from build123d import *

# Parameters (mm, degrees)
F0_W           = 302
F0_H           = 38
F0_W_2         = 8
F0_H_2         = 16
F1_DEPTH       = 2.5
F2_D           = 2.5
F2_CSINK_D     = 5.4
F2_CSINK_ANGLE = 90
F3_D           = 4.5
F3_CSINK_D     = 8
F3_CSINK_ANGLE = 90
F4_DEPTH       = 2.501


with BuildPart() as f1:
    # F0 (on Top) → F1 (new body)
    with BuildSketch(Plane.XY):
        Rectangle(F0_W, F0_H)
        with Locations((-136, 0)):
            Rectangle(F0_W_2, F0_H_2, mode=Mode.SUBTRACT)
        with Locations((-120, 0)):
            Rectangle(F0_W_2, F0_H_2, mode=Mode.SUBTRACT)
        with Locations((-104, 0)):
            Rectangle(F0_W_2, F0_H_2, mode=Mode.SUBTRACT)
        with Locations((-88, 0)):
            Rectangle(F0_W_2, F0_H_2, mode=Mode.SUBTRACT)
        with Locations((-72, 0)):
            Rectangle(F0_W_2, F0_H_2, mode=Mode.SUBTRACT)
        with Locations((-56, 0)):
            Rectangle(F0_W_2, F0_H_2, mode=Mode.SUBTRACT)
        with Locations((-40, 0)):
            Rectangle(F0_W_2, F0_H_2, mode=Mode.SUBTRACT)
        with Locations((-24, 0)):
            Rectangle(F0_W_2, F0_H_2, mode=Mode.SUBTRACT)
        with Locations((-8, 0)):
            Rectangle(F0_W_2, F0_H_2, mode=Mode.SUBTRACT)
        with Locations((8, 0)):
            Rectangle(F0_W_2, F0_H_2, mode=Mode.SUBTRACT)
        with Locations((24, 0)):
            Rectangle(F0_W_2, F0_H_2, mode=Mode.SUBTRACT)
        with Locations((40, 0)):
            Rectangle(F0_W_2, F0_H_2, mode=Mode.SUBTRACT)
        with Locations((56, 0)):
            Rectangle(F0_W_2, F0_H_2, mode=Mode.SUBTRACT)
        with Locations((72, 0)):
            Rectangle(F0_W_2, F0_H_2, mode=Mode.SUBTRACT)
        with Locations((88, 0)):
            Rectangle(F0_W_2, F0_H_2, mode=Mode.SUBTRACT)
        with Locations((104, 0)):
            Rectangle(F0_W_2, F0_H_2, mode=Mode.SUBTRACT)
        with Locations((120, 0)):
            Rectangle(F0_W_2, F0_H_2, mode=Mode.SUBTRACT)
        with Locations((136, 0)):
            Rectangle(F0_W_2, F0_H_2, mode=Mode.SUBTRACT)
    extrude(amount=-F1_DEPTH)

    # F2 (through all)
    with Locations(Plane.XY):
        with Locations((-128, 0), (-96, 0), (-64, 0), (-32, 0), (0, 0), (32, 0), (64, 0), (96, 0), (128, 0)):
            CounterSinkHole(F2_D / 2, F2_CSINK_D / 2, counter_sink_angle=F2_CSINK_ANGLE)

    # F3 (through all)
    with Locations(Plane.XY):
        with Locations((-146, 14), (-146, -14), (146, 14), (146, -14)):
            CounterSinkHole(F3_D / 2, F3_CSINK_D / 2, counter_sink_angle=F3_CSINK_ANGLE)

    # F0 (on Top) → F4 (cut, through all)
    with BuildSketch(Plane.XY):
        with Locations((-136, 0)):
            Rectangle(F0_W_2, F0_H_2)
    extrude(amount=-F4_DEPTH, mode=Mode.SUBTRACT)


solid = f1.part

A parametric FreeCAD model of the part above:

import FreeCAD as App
import Part
import Sketcher

V = App.Vector
Q = App.Units.Quantity


def add_polygon(sketch, points):
    """Adds a closed chain of lines whose ends are joined by coincident constraints."""
    first, n = sketch.GeometryCount, len(points)
    for a, b in zip(points, points[1:] + points[:1]):
        sketch.addGeometry(Part.LineSegment(App.Vector(*a, 0), App.Vector(*b, 0)), False)
    for i in range(n):
        sketch.addConstraint(Sketcher.Constraint("Coincident", first + i, 2, first + (i + 1) % n, 1))

doc = App.newDocument("Part")
body = doc.addObject("PartDesign::Body", "Body")

# Sketch on XY plane
sketch1 = body.newObject("Sketcher::SketchObject", "Sketch")
sketch1.AttachmentSupport = (doc.getObject("XY_Plane"), [""])
sketch1.MapMode = "FlatFace"
add_polygon(sketch1, [(-151, 19), (-151, -19), (151, -19), (151, 19)])  # lines 0-3
add_polygon(sketch1, [(-132, -8), (-140, -8), (-140, 8), (-132, 8)])  # lines 4-7
add_polygon(sketch1, [(-116, -8), (-124, -8), (-124, 8), (-116, 8)])  # lines 8-11
add_polygon(sketch1, [(-100, -8), (-108, -8), (-108, 8), (-100, 8)])  # lines 12-15
add_polygon(sketch1, [(-84, -8), (-92, -8), (-92, 8), (-84, 8)])  # lines 16-19
add_polygon(sketch1, [(-68, -8), (-76, -8), (-76, 8), (-68, 8)])  # lines 20-23
add_polygon(sketch1, [(-52, -8), (-60, -8), (-60, 8), (-52, 8)])  # lines 24-27
add_polygon(sketch1, [(-36, -8), (-44, -8), (-44, 8), (-36, 8)])  # lines 28-31
add_polygon(sketch1, [(-20, -8), (-28, -8), (-28, 8), (-20, 8)])  # lines 32-35
add_polygon(sketch1, [(-4, -8), (-12, -8), (-12, 8), (-4, 8)])  # lines 36-39
add_polygon(sketch1, [(12, -8), (4, -8), (4, 8), (12, 8)])  # lines 40-43
add_polygon(sketch1, [(28, -8), (20, -8), (20, 8), (28, 8)])  # lines 44-47
add_polygon(sketch1, [(44, -8), (36, -8), (36, 8), (44, 8)])  # lines 48-51
add_polygon(sketch1, [(60, -8), (52, -8), (52, 8), (60, 8)])  # lines 52-55
add_polygon(sketch1, [(76, -8), (68, -8), (68, 8), (76, 8)])  # lines 56-59
add_polygon(sketch1, [(92, -8), (84, -8), (84, 8), (92, 8)])  # lines 60-63
add_polygon(sketch1, [(108, -8), (100, -8), (100, 8), (108, 8)])  # lines 64-67
add_polygon(sketch1, [(124, -8), (116, -8), (116, 8), (124, 8)])  # lines 68-71
add_polygon(sketch1, [(140, -8), (132, -8), (132, 8), (140, 8)])  # lines 72-75
sketch1.addConstraint([
    Sketcher.Constraint("Vertical", 0),
    Sketcher.Constraint("Horizontal", 1),
    Sketcher.Constraint("Vertical", 2),
    Sketcher.Constraint("Horizontal", 3),
    Sketcher.Constraint("Horizontal", 4),
    Sketcher.Constraint("Vertical", 5),
    Sketcher.Constraint("Horizontal", 6),
    Sketcher.Constraint("Vertical", 7),
    Sketcher.Constraint("Horizontal", 8),
    Sketcher.Constraint("Vertical", 9),
    Sketcher.Constraint("Horizontal", 10),
    Sketcher.Constraint("Vertical", 11),
    Sketcher.Constraint("Horizontal", 12),
    Sketcher.Constraint("Vertical", 13),
    Sketcher.Constraint("Horizontal", 14),
    Sketcher.Constraint("Vertical", 15),
    Sketcher.Constraint("Horizontal", 16),
    Sketcher.Constraint("Vertical", 17),
    Sketcher.Constraint("Horizontal", 18),
    Sketcher.Constraint("Vertical", 19),
    Sketcher.Constraint("Horizontal", 20),
    Sketcher.Constraint("Vertical", 21),
    Sketcher.Constraint("Horizontal", 22),
    Sketcher.Constraint("Vertical", 23),
    Sketcher.Constraint("Horizontal", 24),
    Sketcher.Constraint("Vertical", 25),
    Sketcher.Constraint("Horizontal", 26),
    Sketcher.Constraint("Vertical", 27),
    Sketcher.Constraint("Horizontal", 28),
    Sketcher.Constraint("Vertical", 29),
    Sketcher.Constraint("Horizontal", 30),
    Sketcher.Constraint("Vertical", 31),
    Sketcher.Constraint("Horizontal", 32),
    Sketcher.Constraint("Vertical", 33),
    Sketcher.Constraint("Horizontal", 34),
    Sketcher.Constraint("Vertical", 35),
    Sketcher.Constraint("Horizontal", 36),
    Sketcher.Constraint("Vertical", 37),
    Sketcher.Constraint("Horizontal", 38),
    Sketcher.Constraint("Vertical", 39),
    Sketcher.Constraint("Horizontal", 40),
    Sketcher.Constraint("Vertical", 41),
    Sketcher.Constraint("Horizontal", 42),
    Sketcher.Constraint("Vertical", 43),
    Sketcher.Constraint("Horizontal", 44),
    Sketcher.Constraint("Vertical", 45),
    Sketcher.Constraint("Horizontal", 46),
    Sketcher.Constraint("Vertical", 47),
    Sketcher.Constraint("Horizontal", 48),
    Sketcher.Constraint("Vertical", 49),
    Sketcher.Constraint("Horizontal", 50),
    Sketcher.Constraint("Vertical", 51),
    Sketcher.Constraint("Horizontal", 52),
    Sketcher.Constraint("Vertical", 53),
    Sketcher.Constraint("Horizontal", 54),
    Sketcher.Constraint("Vertical", 55),
    Sketcher.Constraint("Horizontal", 56),
    Sketcher.Constraint("Vertical", 57),
    Sketcher.Constraint("Horizontal", 58),
    Sketcher.Constraint("Vertical", 59),
    Sketcher.Constraint("Horizontal", 60),
    Sketcher.Constraint("Vertical", 61),
    Sketcher.Constraint("Horizontal", 62),
    Sketcher.Constraint("Vertical", 63),
    Sketcher.Constraint("Horizontal", 64),
    Sketcher.Constraint("Vertical", 65),
    Sketcher.Constraint("Horizontal", 66),
    Sketcher.Constraint("Vertical", 67),
    Sketcher.Constraint("Horizontal", 68),
    Sketcher.Constraint("Vertical", 69),
    Sketcher.Constraint("Horizontal", 70),
    Sketcher.Constraint("Vertical", 71),
    Sketcher.Constraint("Horizontal", 72),
    Sketcher.Constraint("Vertical", 73),
    Sketcher.Constraint("Horizontal", 74),
    Sketcher.Constraint("Vertical", 75),
    Sketcher.Constraint("Symmetric", 0, 2, 2, 2, -1, 1),
    Sketcher.Constraint("Symmetric", 38, 2, 40, 2, -1, 1),
    Sketcher.Constraint("Symmetric", 36, 2, 42, 2, -1, 1),
    Sketcher.Constraint("Symmetric", 34, 2, 44, 2, -1, 1),
    Sketcher.Constraint("Symmetric", 32, 2, 46, 2, -1, 1),
    Sketcher.Constraint("Symmetric", 30, 2, 48, 2, -1, 1),
    Sketcher.Constraint("Symmetric", 28, 2, 50, 2, -1, 1),
    Sketcher.Constraint("Symmetric", 26, 2, 52, 2, -1, 1),
    Sketcher.Constraint("Symmetric", 24, 2, 54, 2, -1, 1),
    Sketcher.Constraint("Symmetric", 22, 2, 56, 2, -1, 1),
    Sketcher.Constraint("Symmetric", 20, 2, 58, 2, -1, 1),
    Sketcher.Constraint("Symmetric", 18, 2, 60, 2, -1, 1),
    Sketcher.Constraint("Symmetric", 16, 2, 62, 2, -1, 1),
    Sketcher.Constraint("Symmetric", 14, 2, 64, 2, -1, 1),
    Sketcher.Constraint("Symmetric", 12, 2, 66, 2, -1, 1),
    Sketcher.Constraint("Symmetric", 10, 2, 68, 2, -1, 1),
    Sketcher.Constraint("Symmetric", 8, 2, 70, 2, -1, 1),
    Sketcher.Constraint("Symmetric", 6, 2, 72, 2, -1, 1),
    Sketcher.Constraint("Symmetric", 4, 2, 74, 2, -1, 1),
    Sketcher.Constraint("Horizontal", 7, 2, 8, 2),
    Sketcher.Constraint("Horizontal", 6, 2, 9, 2),
    Sketcher.Constraint("Horizontal", 11, 2, 12, 2),
    Sketcher.Constraint("Horizontal", 10, 2, 13, 2),
    Sketcher.Constraint("Horizontal", 15, 2, 16, 2),
    Sketcher.Constraint("Horizontal", 14, 2, 17, 2),
    Sketcher.Constraint("Horizontal", 19, 2, 20, 2),
    Sketcher.Constraint("Horizontal", 18, 2, 21, 2),
    Sketcher.Constraint("Horizontal", 23, 2, 24, 2),
    Sketcher.Constraint("Horizontal", 22, 2, 25, 2),
    Sketcher.Constraint("Horizontal", 27, 2, 28, 2),
    Sketcher.Constraint("Horizontal", 26, 2, 29, 2),
    Sketcher.Constraint("Horizontal", 31, 2, 32, 2),
    Sketcher.Constraint("Horizontal", 30, 2, 33, 2),
    Sketcher.Constraint("Horizontal", 35, 2, 36, 2),
    Sketcher.Constraint("Horizontal", 34, 2, 37, 2),
    Sketcher.Constraint("Horizontal", 39, 2, 40, 2),
    Sketcher.Constraint("Equal", 6, 8),
    Sketcher.Constraint("Equal", 10, 12),
    Sketcher.Constraint("Equal", 14, 16),
    Sketcher.Constraint("Equal", 18, 20),
    Sketcher.Constraint("Equal", 22, 24),
    Sketcher.Constraint("Equal", 26, 28),
    Sketcher.Constraint("Equal", 30, 32),
    Sketcher.Constraint("Equal", 34, 36),
    Sketcher.Constraint("DistanceX", 1, 1, 1, 2, Q("302 mm")),
    Sketcher.Constraint("DistanceX", 4, 2, 4, 1, Q("8 mm")),
    Sketcher.Constraint("DistanceY", 0, 2, 0, 1, Q("38 mm")),
    Sketcher.Constraint("DistanceY", 5, 1, 5, 2, Q("16 mm")),
    Sketcher.Constraint("DistanceX", 4, 2, -1, 1, Q("140 mm")),
    Sketcher.Constraint("DistanceX", 8, 2, -1, 1, Q("124 mm")),
    Sketcher.Constraint("DistanceX", 12, 2, -1, 1, Q("108 mm")),
    Sketcher.Constraint("DistanceX", 16, 2, -1, 1, Q("92 mm")),
    Sketcher.Constraint("DistanceX", 20, 2, -1, 1, Q("76 mm")),
    Sketcher.Constraint("DistanceX", 24, 2, -1, 1, Q("60 mm")),
    Sketcher.Constraint("DistanceX", 28, 2, -1, 1, Q("44 mm")),
    Sketcher.Constraint("DistanceX", 32, 2, -1, 1, Q("28 mm")),
    Sketcher.Constraint("DistanceX", 36, 2, -1, 1, Q("12 mm")),
])
pad1 = body.newObject("PartDesign::Pad", "Pad")
pad1.Profile = sketch1
pad1.Length = 2.5
pad1.Reversed = True

# Sketch on XY plane
sketch2 = body.newObject("Sketcher::SketchObject", "Sketch001")
sketch2.AttachmentSupport = (doc.getObject("XY_Plane"), [""])
sketch2.MapMode = "FlatFace"
sketch2.addGeometry([
    Part.Circle(V(-128, 0, 0), V(0, 0, 1), 1.25),  # 0
    Part.Circle(V(-96, 0, 0), V(0, 0, 1), 1.25),  # 1
    Part.Circle(V(-64, 0, 0), V(0, 0, 1), 1.25),  # 2
    Part.Circle(V(-32, 0, 0), V(0, 0, 1), 1.25),  # 3
    Part.Circle(V(0, 0, 0), V(0, 0, 1), 1.25),  # 4
    Part.Circle(V(32, 0, 0), V(0, 0, 1), 1.25),  # 5
    Part.Circle(V(64, 0, 0), V(0, 0, 1), 1.25),  # 6
    Part.Circle(V(96, 0, 0), V(0, 0, 1), 1.25),  # 7
    Part.Circle(V(128, 0, 0), V(0, 0, 1), 1.25),  # 8
], False)
sketch2.addConstraint([
    Sketcher.Constraint("Coincident", 4, 3, -1, 1),
    Sketcher.Constraint("Equal", 0, 1),
    Sketcher.Constraint("Equal", 1, 2),
    Sketcher.Constraint("Equal", 2, 3),
    Sketcher.Constraint("Equal", 3, 4),
    Sketcher.Constraint("Equal", 4, 5),
    Sketcher.Constraint("Equal", 5, 6),
    Sketcher.Constraint("Equal", 6, 7),
    Sketcher.Constraint("Equal", 7, 8),
    Sketcher.Constraint("Symmetric", 3, 3, 5, 3, -1, 1),
    Sketcher.Constraint("Symmetric", 2, 3, 6, 3, -1, 1),
    Sketcher.Constraint("Symmetric", 1, 3, 7, 3, -1, 1),
    Sketcher.Constraint("Symmetric", 0, 3, 8, 3, -1, 1),
    Sketcher.Constraint("PointOnObject", 0, 3, -1),
    Sketcher.Constraint("PointOnObject", 1, 3, -1),
    Sketcher.Constraint("PointOnObject", 2, 3, -1),
    Sketcher.Constraint("PointOnObject", 3, 3, -1),
    Sketcher.Constraint("Diameter", 0, Q("2.5 mm")),
    Sketcher.Constraint("DistanceX", 0, 3, -1, 1, Q("128 mm")),
    Sketcher.Constraint("DistanceX", 1, 3, -1, 1, Q("96 mm")),
    Sketcher.Constraint("DistanceX", 2, 3, -1, 1, Q("64 mm")),
    Sketcher.Constraint("DistanceX", 3, 3, -1, 1, Q("32 mm")),
])
doc.recompute()
hole = body.newObject("PartDesign::Hole", "Hole")
hole.Profile = sketch2
hole.ThreadType = "None"
hole.Diameter = 2.5
hole.DepthType = "ThroughAll"
hole.HoleCutType = "Countersink"
hole.HoleCutDiameter = 5.4
hole.HoleCutCountersinkAngle = 90

# Sketch on XY plane
sketch3 = body.newObject("Sketcher::SketchObject", "Sketch002")
sketch3.AttachmentSupport = (doc.getObject("XY_Plane"), [""])
sketch3.MapMode = "FlatFace"
sketch3.addGeometry([
    Part.Circle(V(-146, 14, 0), V(0, 0, 1), 2.25),
    Part.Circle(V(-146, -14, 0), V(0, 0, 1), 2.25),
    Part.Circle(V(146, 14, 0), V(0, 0, 1), 2.25),
    Part.Circle(V(146, -14, 0), V(0, 0, 1), 2.25),
], False)
sketch3.addConstraint([
    Sketcher.Constraint("Equal", 0, 1),
    Sketcher.Constraint("Equal", 1, 2),
    Sketcher.Constraint("Equal", 2, 3),
    Sketcher.Constraint("Symmetric", 1, 3, 2, 3, -1, 1),
    Sketcher.Constraint("Symmetric", 0, 3, 3, 3, -1, 1),
    Sketcher.Constraint("Symmetric", 0, 3, 2, 3, -2),
    Sketcher.Constraint("Diameter", 0, Q("4.5 mm")),
    Sketcher.Constraint("DistanceX", 0, 3, -1, 1, Q("146 mm")),
    Sketcher.Constraint("DistanceY", -1, 1, 0, 3, Q("14 mm")),
])
doc.recompute()
hole2 = body.newObject("PartDesign::Hole", "Hole001")
hole2.Profile = sketch3
hole2.ThreadType = "None"
hole2.Diameter = 4.5
hole2.DepthType = "ThroughAll"
hole2.HoleCutType = "Countersink"
hole2.HoleCutDiameter = 8
hole2.HoleCutCountersinkAngle = 90

# Sketch on XY plane
sketch4 = body.newObject("Sketcher::SketchObject", "Sketch003")
sketch4.AttachmentSupport = (doc.getObject("XY_Plane"), [""])
sketch4.MapMode = "FlatFace"
add_polygon(sketch4, [(-140, 8), (-140, -8), (-132, -8), (-132, 8)])  # lines 0-3
sketch4.addConstraint([
    Sketcher.Constraint("Vertical", 0),
    Sketcher.Constraint("Horizontal", 1),
    Sketcher.Constraint("Vertical", 2),
    Sketcher.Constraint("Horizontal", 3),
    Sketcher.Constraint("DistanceX", 1, 1, 1, 2, Q("8 mm")),
    Sketcher.Constraint("DistanceY", 0, 2, 0, 1, Q("16 mm")),
    Sketcher.Constraint("DistanceX", 0, 2, -1, 1, Q("140 mm")),
    Sketcher.Constraint("DistanceY", 0, 2, -1, 1, Q("8 mm")),
])
pocket1 = body.newObject("PartDesign::Pocket", "Pocket")
pocket1.Profile = sketch4
pocket1.Type = "ThroughAll"

doc.recompute()
